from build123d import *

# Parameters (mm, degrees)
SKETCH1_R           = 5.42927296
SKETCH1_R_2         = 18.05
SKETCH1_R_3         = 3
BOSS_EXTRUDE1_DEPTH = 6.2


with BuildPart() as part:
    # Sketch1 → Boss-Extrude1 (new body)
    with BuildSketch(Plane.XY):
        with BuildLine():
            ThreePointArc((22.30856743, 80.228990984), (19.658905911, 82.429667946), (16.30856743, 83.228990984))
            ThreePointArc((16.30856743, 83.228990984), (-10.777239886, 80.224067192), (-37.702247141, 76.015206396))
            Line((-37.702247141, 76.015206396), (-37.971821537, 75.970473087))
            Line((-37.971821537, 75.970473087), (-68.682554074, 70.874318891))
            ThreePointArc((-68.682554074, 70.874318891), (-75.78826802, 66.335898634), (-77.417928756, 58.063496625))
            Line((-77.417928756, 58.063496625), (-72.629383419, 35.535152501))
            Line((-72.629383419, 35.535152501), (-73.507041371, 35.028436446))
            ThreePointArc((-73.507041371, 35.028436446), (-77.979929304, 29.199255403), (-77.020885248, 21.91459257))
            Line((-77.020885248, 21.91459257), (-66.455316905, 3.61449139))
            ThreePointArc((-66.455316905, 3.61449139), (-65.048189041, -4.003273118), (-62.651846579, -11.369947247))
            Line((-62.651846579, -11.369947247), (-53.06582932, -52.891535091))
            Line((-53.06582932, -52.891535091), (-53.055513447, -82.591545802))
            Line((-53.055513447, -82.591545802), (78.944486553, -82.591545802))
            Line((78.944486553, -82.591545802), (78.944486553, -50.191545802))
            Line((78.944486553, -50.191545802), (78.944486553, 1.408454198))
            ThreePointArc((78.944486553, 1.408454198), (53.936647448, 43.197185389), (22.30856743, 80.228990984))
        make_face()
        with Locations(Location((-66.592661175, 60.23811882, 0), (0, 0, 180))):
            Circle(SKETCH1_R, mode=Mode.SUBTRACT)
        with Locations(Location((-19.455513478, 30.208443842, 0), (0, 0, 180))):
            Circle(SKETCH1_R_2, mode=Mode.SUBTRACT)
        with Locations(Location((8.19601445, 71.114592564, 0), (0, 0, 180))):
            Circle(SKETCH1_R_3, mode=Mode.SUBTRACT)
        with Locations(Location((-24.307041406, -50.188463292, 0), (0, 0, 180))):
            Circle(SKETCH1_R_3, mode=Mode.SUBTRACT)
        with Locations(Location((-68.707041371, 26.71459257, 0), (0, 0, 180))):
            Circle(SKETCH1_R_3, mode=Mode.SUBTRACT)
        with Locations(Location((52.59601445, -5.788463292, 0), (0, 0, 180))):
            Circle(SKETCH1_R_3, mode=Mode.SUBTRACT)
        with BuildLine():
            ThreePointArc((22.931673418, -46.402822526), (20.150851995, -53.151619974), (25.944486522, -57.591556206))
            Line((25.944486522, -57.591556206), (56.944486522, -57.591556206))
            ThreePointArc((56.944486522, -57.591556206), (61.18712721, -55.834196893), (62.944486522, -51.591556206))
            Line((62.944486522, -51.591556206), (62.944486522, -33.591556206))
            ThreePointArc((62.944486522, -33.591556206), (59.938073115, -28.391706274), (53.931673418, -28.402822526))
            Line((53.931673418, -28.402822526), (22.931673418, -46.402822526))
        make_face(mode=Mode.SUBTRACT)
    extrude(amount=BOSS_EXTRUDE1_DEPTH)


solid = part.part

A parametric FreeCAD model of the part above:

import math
import FreeCAD as App
import Part
import Sketcher

V = App.Vector
Q = App.Units.Quantity

doc = App.newDocument("Part")
params = doc.addObject("Spreadsheet::Sheet", "Params")
for row, (alias, value) in enumerate([
    ("sketch1_diameter", "6 mm"),
    ("sketch1_diameter2", "6 mm"),
    ("sketch1_diameter3", "6 mm"),
    ("sketch1_diameter4", "6 mm"),
    ("sketch1_radius", "6 mm"),
    ("pad1_length", "6.2 mm"),
], start=1):
    params.set(f"A{row}", alias)
    params.set(f"B{row}", "=" + value)
    params.setAlias(f"B{row}", alias)

body = doc.addObject("PartDesign::Body", "Body")

# Sketch on XY plane
sketch1 = body.newObject("Sketcher::SketchObject", "Sketch")
sketch1.AttachmentSupport = (doc.getObject("XY_Plane"), [""])
sketch1.MapMode = "FlatFace"
sketch1.addGeometry(Part.ArcOfCircle(Part.Circle(V(16.272556, 75.656969, 0), V(0, 0, 1), 7.572108), math.radians(37.142383), math.radians(89.727515)), False)
sketch1.addGeometry(Part.ArcOfCircle(Part.Circle(V(70.168851, -525.832883, 0), V(0, 0, 1), 611.43871), math.radians(95.053608), math.radians(100.161407)), False)
sketch1.addGeometry(Part.LineSegment(V(-37.702247, 76.015206, 0), V(-37.971822, 75.970473, 0)), False)
sketch1.addGeometry(Part.LineSegment(V(-37.971822, 75.970473, 0), V(-68.682554, 70.874319, 0)), False)
sketch1.addGeometry(Part.ArcOfCircle(Part.Circle(V(-66.926761, 60.293462, 0), V(0, 0, 1), 10.725546), math.radians(99.421835), math.radians(191.999995)), False)
sketch1.addGeometry(Part.LineSegment(V(-77.417929, 58.063497, 0), V(-72.629383, 35.535153, 0)), False)
sketch1.addGeometry(Part.LineSegment(V(-72.629383, 35.535153, 0), V(-73.507041, 35.028436, 0)), False)
sketch1.addGeometry(Part.ArcOfCircle(Part.Circle(V(-68.707041, 26.714593, 0), V(0, 0, 1), 9.6), math.radians(120), math.radians(210)), False)
sketch1.addGeometry(Part.LineSegment(V(-77.020885, 21.914593, 0), V(-66.455317, 3.614491, 0)), False)
sketch1.addGeometry(Part.ArcOfCircle(Part.Circle(V(-8.055513, 10.463065, 0), V(0, 0, 1), 58.8), math.radians(-173.311446), math.radians(-158.203586)), False)
sketch1.addGeometry(Part.LineSegment(V(-62.651847, -11.369947, 0), V(-53.065829, -52.891535, 0)), False)
sketch1.addGeometry(Part.LineSegment(V(-53.065829, -52.891535, 0), V(-53.055513, -82.591546, 0)), False)
sketch1.addGeometry(Part.LineSegment(V(-53.055513, -82.591546, 0), V(78.944487, -82.591546, 0)), False)
sketch1.addGeometry(Part.LineSegment(V(78.944487, -82.591546, 0), V(78.944487, 1.408454, 0)), False)
sketch1.addGeometry(Part.ArcOfCircle(Part.Circle(V(-182.327587, -126.568749, 0), V(0, 0, 1), 290.931712), math.radians(26.096699), math.radians(45.301017)), False)
sketch1.addGeometry(Part.Circle(V(-24.307041, -50.188463, 0), V(0, 0, 1), 3), False)
sketch1.addGeometry(Part.ArcOfCircle(Part.Circle(V(25.944487, -51.591556, 0), V(0, 0, 1), 6), math.radians(120.141386), math.radians(270)), False)
sketch1.addGeometry(Part.LineSegment(V(22.931673, -46.402823, 0), V(53.931673, -28.402823, 0)), False)
sketch1.addGeometry(Part.ArcOfCircle(Part.Circle(V(56.944487, -33.591556, 0), V(0, 0, 1), 6), math.radians(0), math.radians(120.141386)), False)
sketch1.addGeometry(Part.LineSegment(V(62.944487, -33.591556, 0), V(62.944487, -51.591556, 0)), False)
sketch1.addGeometry(Part.ArcOfCircle(Part.Circle(V(56.944487, -51.591556, 0), V(0, 0, 1), 6), math.radians(-90), math.radians(0)), False)
sketch1.addGeometry(Part.LineSegment(V(56.944487, -57.591556, 0), V(25.944487, -57.591556, 0)), False)
sketch1.addGeometry(Part.Circle(V(52.596014, -5.788463, 0), V(0, 0, 1), 3), False)
sketch1.addGeometry(Part.Circle(V(-68.707041, 26.714593, 0), V(0, 0, 1), 3), False)
sketch1.addGeometry(Part.Circle(V(-19.455513, 30.208444, 0), V(0, 0, 1), 18.05), False)
sketch1.addGeometry(Part.Circle(V(-66.592661, 60.238119, 0), V(0, 0, 1), 5.429273), False)
sketch1.addGeometry(Part.Circle(V(8.196014, 71.114593, 0), V(0, 0, 1), 3), False)
sketch1.addConstraint(Sketcher.Constraint("Coincident", 0, 2, 1, 1))
sketch1.addConstraint(Sketcher.Constraint("Coincident", 1, 2, 2, 1))
sketch1.addConstraint(Sketcher.Constraint("Coincident", 2, 2, 3, 1))
sketch1.addConstraint(Sketcher.Constraint("Coincident", 3, 2, 4, 1))
sketch1.addConstraint(Sketcher.Constraint("Coincident", 4, 2, 5, 1))
sketch1.addConstraint(Sketcher.Constraint("Coincident", 5, 2, 6, 1))
sketch1.addConstraint(Sketcher.Constraint("Coincident", 6, 2, 7, 1))
sketch1.addConstraint(Sketcher.Constraint("Coincident", 7, 2, 8, 1))
sketch1.addConstraint(Sketcher.Constraint("Coincident", 8, 2, 9, 1))
sketch1.addConstraint(Sketcher.Constraint("Coincident", 9, 2, 10, 1))
sketch1.addConstraint(Sketcher.Constraint("Coincident", 10, 2, 11, 1))
sketch1.addConstraint(Sketcher.Constraint("Coincident", 11, 2, 12, 1))
sketch1.addConstraint(Sketcher.Constraint("Coincident", 12, 2, 13, 1))
sketch1.addConstraint(Sketcher.Constraint("Coincident", 13, 2, 14, 1))
sketch1.addConstraint(Sketcher.Constraint("Coincident", 14, 2, 0, 1))
sketch1.addConstraint(Sketcher.Constraint("Coincident", 16, 1, 17, 1))
sketch1.addConstraint(Sketcher.Constraint("Coincident", 17, 2, 18, 2))
sketch1.addConstraint(Sketcher.Constraint("Coincident", 18, 1, 19, 1))
sketch1.addConstraint(Sketcher.Constraint("Coincident", 19, 2, 20, 2))
sketch1.addConstraint(Sketcher.Constraint("Coincident", 20, 1, 21, 1))
sketch1.addConstraint(Sketcher.Constraint("Coincident", 21, 2, 16, 2))
sketch1.addConstraint(Sketcher.Constraint("Horizontal", 12))
sketch1.addConstraint(Sketcher.Constraint("Vertical", 13))
sketch1.addConstraint(Sketcher.Constraint("Vertical", 19))
sketch1.addConstraint(Sketcher.Constraint("Horizontal", 21))
sketch1.addConstraint(Sketcher.Constraint("Coincident", 23, 3, 7, 3))
sketch1.addConstraint(Sketcher.Constraint("Diameter", 15, Q("6 mm")))
sketch1.addConstraint(Sketcher.Constraint("Diameter", 22, Q("6 mm")))
sketch1.addConstraint(Sketcher.Constraint("Diameter", 23, Q("6 mm")))
sketch1.addConstraint(Sketcher.Constraint("Diameter", 26, Q("6 mm")))
sketch1.addConstraint(Sketcher.Constraint("Radius", 16, Q("6 mm")))
sketch1.addConstraint(Sketcher.Constraint("Radius", 18, Q("6 mm")))
sketch1.addConstraint(Sketcher.Constraint("Radius", 20, Q("6 mm")))
sketch1.addConstraint(Sketcher.Constraint("Diameter", 24, Q("36.1 mm")))
sketch1.addConstraint(Sketcher.Constraint("Radius", 7, Q("9.6 mm")))
sketch1.addConstraint(Sketcher.Constraint("Radius", 9, Q("58.8 mm")))
sketch1.addConstraint(Sketcher.Constraint("DistanceX", 12, 1, 12, 2, Q("132 mm")))
sketch1.addConstraint(Sketcher.Constraint("DistanceX", 21, 2, 21, 1, Q("31 mm")))
sketch1.addConstraint(Sketcher.Constraint("DistanceY", 13, 1, 13, 2, Q("84 mm")))
sketch1.addConstraint(Sketcher.Constraint("DistanceY", 19, 2, 19, 1, Q("18 mm")))
sketch1.addConstraint(Sketcher.Constraint("DistanceX", 9, 3, 16, 3, Q("34 mm")))
sketch1.addConstraint(Sketcher.Constraint("DistanceX", 16, 3, 18, 3, Q("31 mm")))
sketch1.addConstraint(Sketcher.Constraint("DistanceY", 16, 3, 18, 3, Q("18 mm")))
sketch1.addConstraint(Sketcher.Constraint("DistanceX", 11, 2, 16, 3, Q("79 mm")))
sketch1.addConstraint(Sketcher.Constraint("DistanceX", 0, 2, 14, 2, Q("6 mm")))
sketch1.addConstraint(Sketcher.Constraint("DistanceY", 14, 2, 0, 2, Q("3 mm")))
sketch1.addConstraint(Sketcher.Constraint("DistanceX", 16, 1, 17, 2, Q("31 mm")))
sketch1.addConstraint(Sketcher.Constraint("DistanceY", 20, 3, 18, 1, Q("18 mm")))
sketch1.addConstraint(Sketcher.Constraint("DistanceX", 20, 1, 19, 2, Q("6 mm")))
sketch1.addConstraint(Sketcher.Constraint("DistanceX", 7, 3, 15, 3, Q("44.4 mm")))
sketch1.addConstraint(Sketcher.Constraint("DistanceY", 15, 3, 22, 3, Q("44.4 mm")))
sketch1.addConstraint(Sketcher.Constraint("DistanceX", 24, 3, 9, 3, Q("11.4 mm")))
sketch1.addConstraint(Sketcher.Constraint("DistanceX", 6, 2, 7, 3, Q("4.8 mm")))
sketch1.addConstraint(Sketcher.Constraint("DistanceY", 7, 2, 7, 3, Q("4.8 mm")))
sketch1.addConstraint(Sketcher.Constraint("Radius", 1, Q("611.43871 mm")))
sketch1.addConstraint(Sketcher.Constraint("Diameter", 25, Q("10.858546 mm")))
sketch1.addConstraint(Sketcher.Constraint("Radius", 0, Q("7.572108 mm")))
sketch1.addConstraint(Sketcher.Constraint("Radius", 4, Q("10.725546 mm")))
sketch1.addConstraint(Sketcher.Constraint("Radius", 14, Q("290.931712 mm")))
sketch1.addConstraint(Sketcher.Constraint("DistanceX", 4, 3, 25, 3, Q("0.3341 mm")))
sketch1.addConstraint(Sketcher.Constraint("DistanceY", 26, 3, 0, 2, Q("12.114398 mm")))
sketch1.addConstraint(Sketcher.Constraint("DistanceY", 25, 3, 3, 2, Q("10.6362 mm")))
sketch1.addConstraint(Sketcher.Constraint("DistanceX", 7, 2, 5, 2, Q("4.391502 mm")))
sketch1.addConstraint(Sketcher.Constraint("DistanceY", 8, 2, 7, 2, Q("18.300101 mm")))
sketch1.addConstraint(Sketcher.Constraint("DistanceY", 10, 2, 9, 3, Q("63.3546 mm")))
sketch1.addConstraint(Sketcher.Constraint("DistanceY", 11, 2, 9, 2, Q("71.221599 mm")))
sketch1.addConstraint(Sketcher.Constraint("Distance", 2, Q("0.273261 mm")))
sketch1.addConstraint(Sketcher.Constraint("Distance", 3, Q("31.13069 mm")))
sketch1.addConstraint(Sketcher.Constraint("Distance", 5, Q("23.03164 mm")))
sketch1.addConstraint(Sketcher.Constraint("DistanceY", -1, 1, 0, 3, Q("75.656969 mm")))
sketch1.addConstraint(Sketcher.Constraint("DistanceX", -1, 1, 1, 3, Q("70.168851 mm")))
sketch1.addConstraint(Sketcher.Constraint("DistanceX", 4, 3, -1, 1, Q("66.926761 mm")))
sketch1.addConstraint(Sketcher.Constraint("DistanceX", 7, 3, -1, 1, Q("68.707041 mm")))
sketch1.addConstraint(Sketcher.Constraint("DistanceY", 14, 3, -1, 1, Q("126.568749 mm")))
sketch1.addConstraint(Sketcher.Constraint("DistanceY", -1, 1, 25, 3, Q("60.238119 mm")))
sketch1.addConstraint(Sketcher.Constraint("DistanceX", 2, 2, -1, 1, Q("37.971822 mm")))
sketch1.addConstraint(Sketcher.Constraint("DistanceX", 4, 2, -1, 1, Q("77.417929 mm")))
sketch1.addConstraint(Sketcher.Constraint("DistanceY", -1, 1, 8, 2, Q("3.614491 mm")))
sketch1.addConstraint(Sketcher.Constraint("DistanceX", 10, 2, -1, 1, Q("53.065829 mm")))
sketch1.addConstraint(Sketcher.Constraint("DistanceY", 1, 3, 0, 3, Q("601.489852 mm")))
sketch1.addConstraint(Sketcher.Constraint("DistanceY", 7, 3, 4, 3, Q("33.57887 mm")))
sketch1.addConstraint(Sketcher.Constraint("DistanceX", 9, 3, 0, 3, Q("24.32807 mm")))
sketch1.addConstraint(Sketcher.Constraint("DistanceY", 16, 3, 9, 3, Q("62.054621 mm")))
sketch1.addConstraint(Sketcher.Constraint("DistanceY", 16, 3, 7, 3, Q("78.306149 mm")))
sketch1.addConstraint(Sketcher.Constraint("DistanceY", 9, 3, 24, 3, Q("19.745379 mm")))
sketch1.addConstraint(Sketcher.Constraint("DistanceY", 10, 2, 15, 3, Q("2.703072 mm")))
sketch1.addConstraint(Sketcher.Constraint("DistanceY", 15, 3, 16, 1, Q("3.785641 mm")))
sketch1.addConstraint(Sketcher.Constraint("DistanceX", 16, 1, 22, 3, Q("29.664341 mm")))
sketch1.addConstraint(Sketcher.Constraint("DistanceX", -1, 1, 26, 3, Q("8.196014 mm")))
sketch1.setExpression("Constraints[26]", "Params.sketch1_diameter")
sketch1.setExpression("Constraints[27]", "Params.sketch1_diameter2")
sketch1.setExpression("Constraints[28]", "Params.sketch1_diameter3")
sketch1.setExpression("Constraints[29]", "Params.sketch1_diameter4")
sketch1.setExpression("Constraints[30]", "Params.sketch1_radius")
pad1 = body.newObject("PartDesign::Pad", "Pad")
pad1.Profile = sketch1
pad1.setExpression("Length", "Params.pad1_length")

doc.recompute()
